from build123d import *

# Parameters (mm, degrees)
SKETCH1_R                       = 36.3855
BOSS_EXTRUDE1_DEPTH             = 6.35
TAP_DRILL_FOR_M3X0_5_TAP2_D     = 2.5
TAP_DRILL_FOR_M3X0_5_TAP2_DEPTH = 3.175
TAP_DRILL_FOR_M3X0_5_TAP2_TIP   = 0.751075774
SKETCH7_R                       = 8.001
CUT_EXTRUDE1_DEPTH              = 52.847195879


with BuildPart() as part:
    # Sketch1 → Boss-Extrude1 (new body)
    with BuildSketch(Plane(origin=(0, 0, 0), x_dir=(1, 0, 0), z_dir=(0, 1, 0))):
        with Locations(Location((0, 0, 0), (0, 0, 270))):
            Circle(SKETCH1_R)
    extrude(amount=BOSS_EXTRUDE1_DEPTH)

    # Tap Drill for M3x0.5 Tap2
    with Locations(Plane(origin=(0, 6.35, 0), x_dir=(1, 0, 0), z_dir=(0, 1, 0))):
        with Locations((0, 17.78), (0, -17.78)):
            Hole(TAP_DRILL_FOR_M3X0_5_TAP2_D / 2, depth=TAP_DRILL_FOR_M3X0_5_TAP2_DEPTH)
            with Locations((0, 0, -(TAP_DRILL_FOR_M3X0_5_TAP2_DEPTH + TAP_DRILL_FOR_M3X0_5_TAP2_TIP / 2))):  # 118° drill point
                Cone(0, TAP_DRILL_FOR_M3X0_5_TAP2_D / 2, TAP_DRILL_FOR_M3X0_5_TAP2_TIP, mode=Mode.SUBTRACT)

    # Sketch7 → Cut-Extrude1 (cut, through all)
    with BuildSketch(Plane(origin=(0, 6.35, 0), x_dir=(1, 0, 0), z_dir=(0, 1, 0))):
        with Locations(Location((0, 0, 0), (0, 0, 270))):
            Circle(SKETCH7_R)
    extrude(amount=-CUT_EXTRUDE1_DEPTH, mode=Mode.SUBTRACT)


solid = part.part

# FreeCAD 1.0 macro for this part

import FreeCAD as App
import Part
import Sketcher
from FreeCAD import Vector
Q = App.Units.Quantity

doc = App.newDocument("Part")
body = doc.addObject("PartDesign::Body", "Body")

sketch1 = body.newObject("Sketcher::SketchObject", "Sketch")
sketch1.AttachmentSupport = (doc.getObject("XZ_Plane"), [""])
sketch1.MapMode = "FlatFace"
sketch1.addGeometry(Part.Circle(Vector(0, 0, 0), Vector(0, 0, 1), 36.3855), False)
sketch1.addConstraint([
    Sketcher.Constraint("Coincident", 0, 3, -1, 1),
    Sketcher.Constraint("Diameter", 0, Q("2.865 in")),
])
pad1 = body.newObject("PartDesign::Pad", "Pad")
pad1.Profile = sketch1
pad1.Length = Q("0.25 in")
pad1.Reversed = True

sketch2 = body.newObject("Sketcher::SketchObject", "Sketch001")
sketch2.AttachmentSupport = (doc.getObject("XZ_Plane"), [""])
sketch2.MapMode = "FlatFace"
sketch2.AttachmentOffset = App.Placement(Vector(0, 0, -0.25 * 25.4), App.Rotation())
sketch2.addGeometry([
    Part.Circle(Vector(0, -17.78, 0), Vector(0, 0, 1), 1.25),
    Part.Circle(Vector(0, 17.78, 0), Vector(0, 0, 1), 1.25),
], False)
sketch2.addConstraint([
    Sketcher.Constraint("Equal", 0, 1),
    Sketcher.Constraint("Symmetric", 0, 3, 1, 3, -1, 1),
    Sketcher.Constraint("PointOnObject", 0, 3, -2),
    Sketcher.Constraint("DistanceY", 0, 3, -1, 1, Q("0.7 in")),
    Sketcher.Constraint("Diameter", 0, Q("2.5 mm")),
])
doc.recompute()
hole = body.newObject("PartDesign::Hole", "Hole")
hole.Profile = sketch2
hole.ThreadType = "None"
hole.Diameter = 2.5
hole.DepthType = "Dimension"
hole.Depth = Q("0.125 in")
hole.DrillPoint = "Angled"
hole.DrillPointAngle = 118
hole.Reversed = True

sketch3 = body.newObject("Sketcher::SketchObject", "Sketch002")
sketch3.AttachmentSupport = (doc.getObject("XZ_Plane"), [""])
sketch3.MapMode = "FlatFace"
sketch3.AttachmentOffset = App.Placement(Vector(0, 0, -0.25 * 25.4), App.Rotation())
sketch3.addGeometry(Part.Circle(Vector(0, 0, 0), Vector(0, 0, 1), 8.001), False)
sketch3.addConstraint([
    Sketcher.Constraint("Coincident", 0, 3, -1, 1),
    Sketcher.Constraint("Diameter", 0, Q("0.63 in")),
])
pocket1 = body.newObject("PartDesign::Pocket", "Pocket")
pocket1.Profile = sketch3
pocket1.Type = "ThroughAll"
pocket1.Reversed = True

doc.recompute()
